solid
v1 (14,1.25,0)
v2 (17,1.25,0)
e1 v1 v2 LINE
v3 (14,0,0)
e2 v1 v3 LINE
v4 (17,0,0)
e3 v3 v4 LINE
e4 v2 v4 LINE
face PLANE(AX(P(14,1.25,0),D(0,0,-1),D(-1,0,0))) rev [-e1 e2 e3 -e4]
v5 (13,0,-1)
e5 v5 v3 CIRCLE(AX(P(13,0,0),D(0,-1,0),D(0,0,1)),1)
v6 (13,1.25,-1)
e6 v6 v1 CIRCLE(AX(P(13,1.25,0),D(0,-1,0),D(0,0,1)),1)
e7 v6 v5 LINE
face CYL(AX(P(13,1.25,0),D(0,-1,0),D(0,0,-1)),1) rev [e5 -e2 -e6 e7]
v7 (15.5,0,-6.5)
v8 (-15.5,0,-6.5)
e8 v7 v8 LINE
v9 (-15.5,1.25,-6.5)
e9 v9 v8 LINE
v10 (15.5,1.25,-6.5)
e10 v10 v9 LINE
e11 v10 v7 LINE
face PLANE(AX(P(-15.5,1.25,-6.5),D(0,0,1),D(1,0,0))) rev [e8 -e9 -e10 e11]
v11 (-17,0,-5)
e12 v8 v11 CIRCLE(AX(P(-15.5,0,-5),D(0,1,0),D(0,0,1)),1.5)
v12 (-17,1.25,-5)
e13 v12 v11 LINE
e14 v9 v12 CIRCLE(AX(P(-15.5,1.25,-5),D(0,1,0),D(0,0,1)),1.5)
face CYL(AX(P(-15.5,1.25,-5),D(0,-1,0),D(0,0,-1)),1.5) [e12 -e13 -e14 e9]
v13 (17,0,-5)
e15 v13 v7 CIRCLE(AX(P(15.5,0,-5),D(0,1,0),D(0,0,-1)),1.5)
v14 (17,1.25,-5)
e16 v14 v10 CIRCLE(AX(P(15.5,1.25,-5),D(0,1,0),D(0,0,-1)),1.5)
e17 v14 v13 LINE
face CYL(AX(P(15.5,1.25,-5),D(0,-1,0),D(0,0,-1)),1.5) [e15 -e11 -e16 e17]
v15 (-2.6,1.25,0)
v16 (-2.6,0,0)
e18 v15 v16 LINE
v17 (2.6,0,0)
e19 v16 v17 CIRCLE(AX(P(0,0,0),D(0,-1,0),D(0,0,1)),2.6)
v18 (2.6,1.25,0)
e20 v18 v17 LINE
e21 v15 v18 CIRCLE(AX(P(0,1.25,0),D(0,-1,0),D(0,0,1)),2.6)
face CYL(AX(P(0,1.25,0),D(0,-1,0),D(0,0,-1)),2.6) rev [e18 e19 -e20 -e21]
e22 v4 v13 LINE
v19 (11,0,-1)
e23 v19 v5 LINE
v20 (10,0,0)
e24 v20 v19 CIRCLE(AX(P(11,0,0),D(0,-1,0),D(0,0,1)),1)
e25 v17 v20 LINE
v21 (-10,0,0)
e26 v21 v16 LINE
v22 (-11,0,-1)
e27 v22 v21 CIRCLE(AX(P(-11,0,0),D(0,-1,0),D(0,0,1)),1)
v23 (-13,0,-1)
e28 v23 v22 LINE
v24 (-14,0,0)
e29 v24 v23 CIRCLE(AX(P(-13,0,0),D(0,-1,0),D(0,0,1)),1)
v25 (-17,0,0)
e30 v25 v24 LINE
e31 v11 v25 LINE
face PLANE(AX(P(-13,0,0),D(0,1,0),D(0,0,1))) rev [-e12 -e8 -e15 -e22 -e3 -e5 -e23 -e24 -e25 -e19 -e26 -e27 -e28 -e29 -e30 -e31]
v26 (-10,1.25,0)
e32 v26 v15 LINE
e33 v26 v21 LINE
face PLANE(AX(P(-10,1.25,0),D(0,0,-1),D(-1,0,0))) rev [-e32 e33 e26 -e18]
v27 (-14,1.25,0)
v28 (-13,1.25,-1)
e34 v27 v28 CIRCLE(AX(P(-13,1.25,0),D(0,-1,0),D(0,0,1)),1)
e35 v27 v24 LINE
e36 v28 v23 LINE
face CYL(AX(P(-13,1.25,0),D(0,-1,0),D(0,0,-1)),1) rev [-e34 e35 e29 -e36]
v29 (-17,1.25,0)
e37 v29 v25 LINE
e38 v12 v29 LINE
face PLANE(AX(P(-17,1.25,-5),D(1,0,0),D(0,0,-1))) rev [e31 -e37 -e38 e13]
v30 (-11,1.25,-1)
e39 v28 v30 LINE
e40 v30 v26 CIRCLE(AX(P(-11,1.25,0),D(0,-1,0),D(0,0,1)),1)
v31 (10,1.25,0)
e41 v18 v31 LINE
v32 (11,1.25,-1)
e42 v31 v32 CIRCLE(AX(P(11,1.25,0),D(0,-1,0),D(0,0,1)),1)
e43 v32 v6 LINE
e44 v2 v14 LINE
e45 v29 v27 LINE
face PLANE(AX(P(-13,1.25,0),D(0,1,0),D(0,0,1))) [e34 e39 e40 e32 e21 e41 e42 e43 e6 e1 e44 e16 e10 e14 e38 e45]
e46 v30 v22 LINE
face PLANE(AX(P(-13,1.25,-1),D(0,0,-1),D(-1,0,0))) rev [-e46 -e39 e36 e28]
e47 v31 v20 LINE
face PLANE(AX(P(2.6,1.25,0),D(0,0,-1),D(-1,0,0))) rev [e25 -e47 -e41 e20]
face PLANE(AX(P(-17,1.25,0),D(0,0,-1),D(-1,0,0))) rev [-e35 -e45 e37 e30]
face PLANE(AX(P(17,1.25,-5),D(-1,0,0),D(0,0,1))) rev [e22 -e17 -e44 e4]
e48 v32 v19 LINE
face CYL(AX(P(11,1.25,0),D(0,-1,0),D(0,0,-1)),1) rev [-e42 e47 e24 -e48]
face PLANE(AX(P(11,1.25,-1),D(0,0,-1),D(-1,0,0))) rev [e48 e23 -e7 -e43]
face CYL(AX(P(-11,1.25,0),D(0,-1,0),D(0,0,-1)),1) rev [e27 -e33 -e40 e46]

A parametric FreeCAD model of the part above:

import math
import FreeCAD as App
import Part
import Sketcher
from FreeCAD import Vector
Q = App.Units.Quantity

doc = App.newDocument("Part")
params = doc.addObject("Spreadsheet::Sheet", "Params")
for row, (alias, value) in enumerate([
    ("sketch1_radius", "1 mm"),
    ("sketch1_radius2", "1.5 mm"),
    ("sketch1_radius3", "2.6 mm"),
    ("sketch1_width", "31 mm"),
    ("sketch1_width2", "3 mm"),
    ("pad1_length", "1.25 mm"),
], start=1):
    params.set(f"A{row}", alias)
    params.set(f"B{row}", "=" + value)
    params.setAlias(f"B{row}", alias)

body = doc.addObject("PartDesign::Body", "Body")

# Sketch on XZ plane
sketch1 = body.newObject("Sketcher::SketchObject", "Sketch")
sketch1.AttachmentSupport = (doc.getObject("XZ_Plane"), [""])
sketch1.MapMode = "FlatFace"
sketch1.addGeometry([
    Part.LineSegment(Vector(15.5, -6.5, 0), Vector(-15.5, -6.5, 0)),  # 0
    Part.ArcOfCircle(Part.Circle(Vector(-15.5, -5, 0), Vector(0, 0, 1), 1.5), math.radians(180), math.radians(270)),  # 1
    Part.LineSegment(Vector(-17, -5, 0), Vector(-17, 0, 0)),  # 2
    Part.LineSegment(Vector(-17, 0, 0), Vector(-14, 0, 0)),  # 3
    Part.ArcOfCircle(Part.Circle(Vector(-13, 0, 0), Vector(0, 0, 1), 1), math.radians(-180), math.radians(-90)),  # 4
    Part.LineSegment(Vector(-13, -1, 0), Vector(-11, -1, 0)),  # 5
    Part.ArcOfCircle(Part.Circle(Vector(-11, 0, 0), Vector(0, 0, 1), 1), math.radians(-90), math.radians(0)),  # 6
    Part.LineSegment(Vector(-10, 0, 0), Vector(-2.6, 0, 0)),  # 7
    Part.ArcOfCircle(Part.Circle(Vector(0, 0, 0), Vector(0, 0, 1), 2.6), math.radians(180), math.radians(360)),  # 8
    Part.LineSegment(Vector(2.6, 0, 0), Vector(10, 0, 0)),  # 9
    Part.ArcOfCircle(Part.Circle(Vector(11, 0, 0), Vector(0, 0, 1), 1), math.radians(-180), math.radians(-90)),  # 10
    Part.LineSegment(Vector(11, -1, 0), Vector(13, -1, 0)),  # 11
    Part.ArcOfCircle(Part.Circle(Vector(13, 0, 0), Vector(0, 0, 1), 1), math.radians(-90), math.radians(0)),  # 12
    Part.LineSegment(Vector(14, 0, 0), Vector(17, 0, 0)),  # 13
    Part.LineSegment(Vector(17, 0, 0), Vector(17, -5, 0)),  # 14
    Part.ArcOfCircle(Part.Circle(Vector(15.5, -5, 0), Vector(0, 0, 1), 1.5), math.radians(-90), math.radians(0)),  # 15
], False)
sketch1.addConstraint([
    Sketcher.Constraint("Tangent", 0, 2, 1, 2),
    Sketcher.Constraint("Tangent", 1, 1, 2, 1),
    Sketcher.Constraint("Coincident", 2, 2, 3, 1),
    Sketcher.Constraint("Coincident", 3, 2, 4, 1),
    Sketcher.Constraint("Tangent", 4, 2, 5, 1),
    Sketcher.Constraint("Tangent", 5, 2, 6, 1),
    Sketcher.Constraint("Coincident", 6, 2, 7, 1),
    Sketcher.Constraint("Coincident", 7, 2, 8, 1),
    Sketcher.Constraint("Coincident", 8, 2, 9, 1),
    Sketcher.Constraint("Coincident", 9, 2, 10, 1),
    Sketcher.Constraint("Tangent", 10, 2, 11, 1),
    Sketcher.Constraint("Tangent", 11, 2, 12, 1),
    Sketcher.Constraint("Coincident", 12, 2, 13, 1),
    Sketcher.Constraint("Coincident", 13, 2, 14, 1),
    Sketcher.Constraint("Tangent", 14, 2, 15, 2),
    Sketcher.Constraint("Tangent", 15, 1, 0, 1),
    Sketcher.Constraint("Horizontal", 0),
    Sketcher.Constraint("Vertical", 2),
    Sketcher.Constraint("Horizontal", 3),
    Sketcher.Constraint("Horizontal", 5),
    Sketcher.Constraint("Horizontal", 7),
    Sketcher.Constraint("Horizontal", 9),
    Sketcher.Constraint("Horizontal", 11),
    Sketcher.Constraint("Horizontal", 13),
    Sketcher.Constraint("Vertical", 14),
    Sketcher.Constraint("Coincident", 8, 3, -1, 1),
    Sketcher.Constraint("Equal", 4, 6),
    Sketcher.Constraint("Equal", 6, 10),
    Sketcher.Constraint("Equal", 10, 12),
    Sketcher.Constraint("Equal", 1, 15),
    Sketcher.Constraint("Symmetric", 6, 3, 10, 3, -1, 1),
    Sketcher.Constraint("Symmetric", 3, 2, 12, 2, -1, 1),
    Sketcher.Constraint("Symmetric", 2, 2, 13, 2, -2),
    Sketcher.Constraint("PointOnObject", 4, 3, -1),
    Sketcher.Constraint("PointOnObject", 6, 2, -1),
    Sketcher.Constraint("PointOnObject", 8, 2, -1),
    Sketcher.Constraint("Radius", 4, Q("1 mm")),
    Sketcher.Constraint("Radius", 1, Q("1.5 mm")),
    Sketcher.Constraint("Radius", 8, Q("2.6 mm")),
    Sketcher.Constraint("DistanceX", 0, 2, 0, 1, Q("31 mm")),
    Sketcher.Constraint("DistanceX", 3, 1, 3, 2, Q("3 mm")),
    Sketcher.Constraint("DistanceX", 5, 1, 5, 2, Q("2 mm")),
    Sketcher.Constraint("DistanceY", 2, 1, 2, 2, Q("5 mm")),
])
sketch1.setExpression("Constraints[36]", "Params.sketch1_radius")
sketch1.setExpression("Constraints[37]", "Params.sketch1_radius2")
sketch1.setExpression("Constraints[38]", "Params.sketch1_radius3")
sketch1.setExpression("Constraints[39]", "Params.sketch1_width")
sketch1.setExpression("Constraints[40]", "Params.sketch1_width2")
pad1 = body.newObject("PartDesign::Pad", "Pad")
pad1.Profile = sketch1
pad1.setExpression("Length", "Params.pad1_length")
pad1.Reversed = True

doc.recompute()
